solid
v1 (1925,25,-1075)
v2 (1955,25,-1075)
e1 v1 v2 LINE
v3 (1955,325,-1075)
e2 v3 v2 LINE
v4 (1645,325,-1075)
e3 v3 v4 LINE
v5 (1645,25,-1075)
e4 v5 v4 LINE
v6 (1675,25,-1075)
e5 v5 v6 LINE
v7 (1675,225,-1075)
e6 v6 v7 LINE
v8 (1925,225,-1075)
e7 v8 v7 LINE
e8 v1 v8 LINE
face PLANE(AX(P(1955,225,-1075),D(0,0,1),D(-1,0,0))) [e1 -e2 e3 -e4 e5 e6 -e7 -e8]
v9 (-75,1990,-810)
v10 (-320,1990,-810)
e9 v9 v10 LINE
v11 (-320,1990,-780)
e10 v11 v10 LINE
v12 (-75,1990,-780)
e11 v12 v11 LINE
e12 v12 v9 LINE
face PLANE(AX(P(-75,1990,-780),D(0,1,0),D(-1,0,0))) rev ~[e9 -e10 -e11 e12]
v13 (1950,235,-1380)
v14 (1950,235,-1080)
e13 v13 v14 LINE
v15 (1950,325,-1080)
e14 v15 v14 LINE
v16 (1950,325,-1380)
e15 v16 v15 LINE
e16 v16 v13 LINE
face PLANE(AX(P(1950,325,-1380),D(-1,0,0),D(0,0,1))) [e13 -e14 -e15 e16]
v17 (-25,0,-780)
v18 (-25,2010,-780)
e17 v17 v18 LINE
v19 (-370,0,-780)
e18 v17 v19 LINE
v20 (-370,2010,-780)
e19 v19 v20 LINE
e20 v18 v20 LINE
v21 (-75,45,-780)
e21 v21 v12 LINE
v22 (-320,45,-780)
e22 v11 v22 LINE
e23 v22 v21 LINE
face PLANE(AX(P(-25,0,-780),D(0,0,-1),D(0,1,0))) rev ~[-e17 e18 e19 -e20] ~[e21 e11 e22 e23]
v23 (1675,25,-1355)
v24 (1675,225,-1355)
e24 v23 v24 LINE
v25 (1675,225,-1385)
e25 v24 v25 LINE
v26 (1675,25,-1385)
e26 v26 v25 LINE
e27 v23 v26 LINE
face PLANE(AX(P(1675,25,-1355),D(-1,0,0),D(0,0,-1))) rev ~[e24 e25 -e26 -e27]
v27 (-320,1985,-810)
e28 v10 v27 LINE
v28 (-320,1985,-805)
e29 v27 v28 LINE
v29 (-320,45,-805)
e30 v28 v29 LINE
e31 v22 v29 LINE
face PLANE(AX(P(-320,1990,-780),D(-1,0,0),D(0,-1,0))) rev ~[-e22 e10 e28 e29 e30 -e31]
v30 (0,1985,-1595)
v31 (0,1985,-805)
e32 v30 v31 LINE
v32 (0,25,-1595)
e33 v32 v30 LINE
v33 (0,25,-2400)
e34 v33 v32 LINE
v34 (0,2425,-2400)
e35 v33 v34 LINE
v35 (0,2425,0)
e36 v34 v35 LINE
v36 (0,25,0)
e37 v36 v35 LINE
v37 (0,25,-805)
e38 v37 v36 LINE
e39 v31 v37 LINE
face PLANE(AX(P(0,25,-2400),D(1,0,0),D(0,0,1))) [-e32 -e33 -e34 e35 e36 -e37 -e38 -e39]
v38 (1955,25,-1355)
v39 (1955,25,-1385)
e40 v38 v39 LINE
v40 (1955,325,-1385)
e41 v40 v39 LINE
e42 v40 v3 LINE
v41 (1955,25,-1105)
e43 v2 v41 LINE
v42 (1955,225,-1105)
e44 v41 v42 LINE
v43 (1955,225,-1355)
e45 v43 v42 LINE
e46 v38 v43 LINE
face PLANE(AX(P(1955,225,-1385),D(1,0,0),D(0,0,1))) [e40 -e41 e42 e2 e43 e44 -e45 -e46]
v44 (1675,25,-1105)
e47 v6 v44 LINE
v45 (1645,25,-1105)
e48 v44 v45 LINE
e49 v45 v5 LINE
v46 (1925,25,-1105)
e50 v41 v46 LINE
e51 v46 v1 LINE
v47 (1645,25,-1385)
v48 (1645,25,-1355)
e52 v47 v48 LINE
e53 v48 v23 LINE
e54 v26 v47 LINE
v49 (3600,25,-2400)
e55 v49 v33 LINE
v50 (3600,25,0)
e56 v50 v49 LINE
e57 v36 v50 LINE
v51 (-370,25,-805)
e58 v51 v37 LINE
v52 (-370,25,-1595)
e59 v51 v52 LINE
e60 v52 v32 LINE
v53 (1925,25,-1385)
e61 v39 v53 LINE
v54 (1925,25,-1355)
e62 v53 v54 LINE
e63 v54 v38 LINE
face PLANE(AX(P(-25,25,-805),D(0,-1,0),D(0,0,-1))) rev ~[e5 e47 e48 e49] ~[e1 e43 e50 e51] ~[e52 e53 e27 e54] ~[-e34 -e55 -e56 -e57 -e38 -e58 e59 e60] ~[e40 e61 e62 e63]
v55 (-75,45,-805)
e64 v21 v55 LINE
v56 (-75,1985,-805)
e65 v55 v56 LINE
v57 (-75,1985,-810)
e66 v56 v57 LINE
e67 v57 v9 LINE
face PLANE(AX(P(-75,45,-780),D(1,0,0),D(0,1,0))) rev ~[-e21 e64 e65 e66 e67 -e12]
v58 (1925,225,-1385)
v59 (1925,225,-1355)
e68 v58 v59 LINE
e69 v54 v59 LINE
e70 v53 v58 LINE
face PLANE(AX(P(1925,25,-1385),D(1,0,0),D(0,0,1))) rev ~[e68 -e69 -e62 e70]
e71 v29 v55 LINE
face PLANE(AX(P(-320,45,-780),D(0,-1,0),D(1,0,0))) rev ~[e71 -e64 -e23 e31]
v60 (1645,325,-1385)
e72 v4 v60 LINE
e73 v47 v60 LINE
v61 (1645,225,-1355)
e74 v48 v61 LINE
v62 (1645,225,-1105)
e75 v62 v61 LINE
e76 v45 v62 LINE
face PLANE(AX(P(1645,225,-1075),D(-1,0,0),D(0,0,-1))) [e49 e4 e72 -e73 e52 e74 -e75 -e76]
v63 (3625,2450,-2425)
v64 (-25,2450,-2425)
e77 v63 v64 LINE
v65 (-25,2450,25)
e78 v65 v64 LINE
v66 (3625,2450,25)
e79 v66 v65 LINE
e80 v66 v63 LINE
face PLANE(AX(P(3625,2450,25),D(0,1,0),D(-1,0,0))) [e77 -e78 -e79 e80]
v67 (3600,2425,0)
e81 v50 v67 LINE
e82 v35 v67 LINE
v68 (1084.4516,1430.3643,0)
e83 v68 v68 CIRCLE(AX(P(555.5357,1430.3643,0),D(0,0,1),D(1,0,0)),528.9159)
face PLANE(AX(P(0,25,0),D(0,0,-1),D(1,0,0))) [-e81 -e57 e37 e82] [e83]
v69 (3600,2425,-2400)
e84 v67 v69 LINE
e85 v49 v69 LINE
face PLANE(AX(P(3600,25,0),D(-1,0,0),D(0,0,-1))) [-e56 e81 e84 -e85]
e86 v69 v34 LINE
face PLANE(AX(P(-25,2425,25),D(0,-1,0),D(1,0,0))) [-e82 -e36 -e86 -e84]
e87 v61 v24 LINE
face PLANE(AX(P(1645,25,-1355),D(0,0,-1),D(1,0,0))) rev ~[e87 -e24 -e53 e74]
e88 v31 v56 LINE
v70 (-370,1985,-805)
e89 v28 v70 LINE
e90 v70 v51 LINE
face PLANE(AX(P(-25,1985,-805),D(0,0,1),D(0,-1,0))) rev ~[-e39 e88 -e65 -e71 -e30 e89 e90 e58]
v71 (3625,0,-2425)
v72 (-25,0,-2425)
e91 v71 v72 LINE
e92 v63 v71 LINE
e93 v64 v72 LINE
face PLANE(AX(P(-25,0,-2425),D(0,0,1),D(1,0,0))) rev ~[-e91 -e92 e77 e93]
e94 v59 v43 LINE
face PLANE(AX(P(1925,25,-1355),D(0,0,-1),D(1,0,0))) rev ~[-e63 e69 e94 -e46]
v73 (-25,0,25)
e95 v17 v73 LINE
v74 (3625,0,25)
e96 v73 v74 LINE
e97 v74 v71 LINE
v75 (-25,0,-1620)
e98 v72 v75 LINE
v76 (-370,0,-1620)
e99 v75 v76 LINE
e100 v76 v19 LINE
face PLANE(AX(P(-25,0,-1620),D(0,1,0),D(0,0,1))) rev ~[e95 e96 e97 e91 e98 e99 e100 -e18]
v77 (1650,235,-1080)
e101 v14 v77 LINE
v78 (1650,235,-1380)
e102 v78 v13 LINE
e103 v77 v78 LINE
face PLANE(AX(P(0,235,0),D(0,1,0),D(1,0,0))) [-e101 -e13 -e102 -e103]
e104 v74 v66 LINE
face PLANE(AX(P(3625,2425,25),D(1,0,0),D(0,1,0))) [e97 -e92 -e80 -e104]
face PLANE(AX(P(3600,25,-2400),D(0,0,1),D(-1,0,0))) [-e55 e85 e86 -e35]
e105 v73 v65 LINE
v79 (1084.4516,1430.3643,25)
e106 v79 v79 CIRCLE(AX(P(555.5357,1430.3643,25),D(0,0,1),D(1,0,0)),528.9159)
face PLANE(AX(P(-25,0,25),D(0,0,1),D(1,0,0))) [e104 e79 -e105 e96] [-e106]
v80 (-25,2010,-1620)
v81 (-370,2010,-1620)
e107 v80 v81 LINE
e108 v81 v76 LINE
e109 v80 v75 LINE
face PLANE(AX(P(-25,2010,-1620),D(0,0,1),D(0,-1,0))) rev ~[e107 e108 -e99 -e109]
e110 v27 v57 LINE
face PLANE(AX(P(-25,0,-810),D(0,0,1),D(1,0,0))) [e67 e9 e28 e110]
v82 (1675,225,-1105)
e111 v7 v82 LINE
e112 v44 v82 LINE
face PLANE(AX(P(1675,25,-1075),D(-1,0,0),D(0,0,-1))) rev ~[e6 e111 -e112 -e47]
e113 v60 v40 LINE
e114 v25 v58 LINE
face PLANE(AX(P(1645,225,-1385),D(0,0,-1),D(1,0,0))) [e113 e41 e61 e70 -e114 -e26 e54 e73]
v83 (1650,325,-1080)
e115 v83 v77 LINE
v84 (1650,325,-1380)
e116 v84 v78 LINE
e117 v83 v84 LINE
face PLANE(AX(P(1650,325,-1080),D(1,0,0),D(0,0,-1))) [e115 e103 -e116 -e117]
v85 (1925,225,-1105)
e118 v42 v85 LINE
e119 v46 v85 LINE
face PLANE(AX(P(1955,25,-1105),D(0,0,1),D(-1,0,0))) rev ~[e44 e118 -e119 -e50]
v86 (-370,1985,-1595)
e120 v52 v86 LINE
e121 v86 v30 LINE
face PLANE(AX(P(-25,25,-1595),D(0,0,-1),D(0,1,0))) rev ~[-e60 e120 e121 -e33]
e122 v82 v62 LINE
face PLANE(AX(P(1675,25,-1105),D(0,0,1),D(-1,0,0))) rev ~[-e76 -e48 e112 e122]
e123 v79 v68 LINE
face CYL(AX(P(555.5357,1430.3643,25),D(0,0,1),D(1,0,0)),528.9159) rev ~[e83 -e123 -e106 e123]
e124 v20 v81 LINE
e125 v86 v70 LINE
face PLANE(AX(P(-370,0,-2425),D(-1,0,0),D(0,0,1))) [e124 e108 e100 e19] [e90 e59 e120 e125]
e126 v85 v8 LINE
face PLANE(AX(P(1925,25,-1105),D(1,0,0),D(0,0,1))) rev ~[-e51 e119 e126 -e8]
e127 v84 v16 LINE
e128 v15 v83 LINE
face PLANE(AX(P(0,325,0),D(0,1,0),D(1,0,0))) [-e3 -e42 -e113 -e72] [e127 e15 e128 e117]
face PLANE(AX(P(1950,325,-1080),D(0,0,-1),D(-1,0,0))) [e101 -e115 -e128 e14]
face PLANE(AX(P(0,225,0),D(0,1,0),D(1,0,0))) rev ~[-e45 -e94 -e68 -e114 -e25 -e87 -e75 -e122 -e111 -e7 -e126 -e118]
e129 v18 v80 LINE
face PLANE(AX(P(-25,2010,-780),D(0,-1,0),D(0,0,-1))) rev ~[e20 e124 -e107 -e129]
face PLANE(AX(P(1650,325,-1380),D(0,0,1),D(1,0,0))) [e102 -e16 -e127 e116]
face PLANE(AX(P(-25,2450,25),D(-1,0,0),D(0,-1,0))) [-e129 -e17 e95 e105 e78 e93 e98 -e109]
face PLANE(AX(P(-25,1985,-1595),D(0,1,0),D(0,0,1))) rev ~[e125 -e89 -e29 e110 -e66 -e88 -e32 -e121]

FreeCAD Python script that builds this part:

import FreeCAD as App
import Part
import Sketcher
from FreeCAD import Vector

doc = App.newDocument("Part")
body = doc.addObject("PartDesign::Body", "Body")

sketch1 = body.newObject("Sketcher::SketchObject", "Sketch")
sketch1.AttachmentSupport = (doc.getObject("XZ_Plane"), [""])
sketch1.MapMode = "FlatFace"
sketch1.addGeometry([
    Part.LineSegment(Vector(-25, -2425, 0), Vector(-25, 25, 0)),
    Part.LineSegment(Vector(-25, 25, 0), Vector(3625, 25, 0)),
    Part.LineSegment(Vector(3625, 25, 0), Vector(3625, -2425, 0)),
    Part.LineSegment(Vector(3625, -2425, 0), Vector(-25, -2425, 0)),
], False)
sketch1.addConstraint([
    Sketcher.Constraint("Coincident", 0, 2, 1, 1),
    Sketcher.Constraint("Coincident", 1, 2, 2, 1),
    Sketcher.Constraint("Coincident", 2, 2, 3, 1),
    Sketcher.Constraint("Coincident", 3, 2, 0, 1),
    Sketcher.Constraint("Vertical", 0),
    Sketcher.Constraint("Horizontal", 1),
    Sketcher.Constraint("Vertical", 2),
    Sketcher.Constraint("Horizontal", 3),
    Sketcher.Constraint("DistanceX", 1, 1, 1, 2, 3650.0),
    Sketcher.Constraint("DistanceY", 0, 1, 0, 2, 2450.0),
    Sketcher.Constraint("DistanceX", 0, 2, -1, 1, 25.0),
    Sketcher.Constraint("DistanceY", -1, 1, 0, 2, 25.0),
])
pad1 = body.newObject("PartDesign::Pad", "Pad")
pad1.Profile = sketch1
pad1.Length = 25
pad1.Reversed = True

sketch2 = body.newObject("Sketcher::SketchObject", "Sketch001")
sketch2.AttachmentSupport = (doc.getObject("XZ_Plane"), [""])
sketch2.MapMode = "FlatFace"
sketch2.AttachmentOffset = App.Placement(Vector(0, 0, -25), App.Rotation())
sketch2.addGeometry([
    Part.LineSegment(Vector(1645, -1385, 0), Vector(1645, -1355, 0)),
    Part.LineSegment(Vector(1645, -1355, 0), Vector(1675, -1355, 0)),
    Part.LineSegment(Vector(1675, -1355, 0), Vector(1675, -1385, 0)),
    Part.LineSegment(Vector(1675, -1385, 0), Vector(1645, -1385, 0)),
    Part.LineSegment(Vector(1925, -1385, 0), Vector(1925, -1355, 0)),
    Part.LineSegment(Vector(1925, -1355, 0), Vector(1955, -1355, 0)),
    Part.LineSegment(Vector(1955, -1355, 0), Vector(1955, -1385, 0)),
    Part.LineSegment(Vector(1955, -1385, 0), Vector(1925, -1385, 0)),
    Part.LineSegment(Vector(1925, -1105, 0), Vector(1925, -1075, 0)),
    Part.LineSegment(Vector(1925, -1075, 0), Vector(1955, -1075, 0)),
    Part.LineSegment(Vector(1955, -1075, 0), Vector(1955, -1105, 0)),
    Part.LineSegment(Vector(1955, -1105, 0), Vector(1925, -1105, 0)),
    Part.LineSegment(Vector(1645, -1105, 0), Vector(1645, -1075, 0)),
    Part.LineSegment(Vector(1645, -1075, 0), Vector(1675, -1075, 0)),
    Part.LineSegment(Vector(1675, -1075, 0), Vector(1675, -1105, 0)),
    Part.LineSegment(Vector(1675, -1105, 0), Vector(1645, -1105, 0)),
], False)
sketch2.addConstraint([
    Sketcher.Constraint("Coincident", 0, 2, 1, 1),
    Sketcher.Constraint("Coincident", 1, 2, 2, 1),
    Sketcher.Constraint("Coincident", 2, 2, 3, 1),
    Sketcher.Constraint("Coincident", 3, 2, 0, 1),
    Sketcher.Constraint("Coincident", 4, 2, 5, 1),
    Sketcher.Constraint("Coincident", 5, 2, 6, 1),
    Sketcher.Constraint("Coincident", 6, 2, 7, 1),
    Sketcher.Constraint("Coincident", 7, 2, 4, 1),
    Sketcher.Constraint("Coincident", 8, 2, 9, 1),
    Sketcher.Constraint("Coincident", 9, 2, 10, 1),
    Sketcher.Constraint("Coincident", 10, 2, 11, 1),
    Sketcher.Constraint("Coincident", 11, 2, 8, 1),
    Sketcher.Constraint("Coincident", 12, 2, 13, 1),
    Sketcher.Constraint("Coincident", 13, 2, 14, 1),
    Sketcher.Constraint("Coincident", 14, 2, 15, 1),
    Sketcher.Constraint("Coincident", 15, 2, 12, 1),
    Sketcher.Constraint("Vertical", 0),
    Sketcher.Constraint("Horizontal", 1),
    Sketcher.Constraint("Vertical", 2),
    Sketcher.Constraint("Horizontal", 3),
    Sketcher.Constraint("Vertical", 4),
    Sketcher.Constraint("Horizontal", 5),
    Sketcher.Constraint("Vertical", 6),
    Sketcher.Constraint("Horizontal", 7),
    Sketcher.Constraint("Vertical", 8),
    Sketcher.Constraint("Horizontal", 9),
    Sketcher.Constraint("Vertical", 10),
    Sketcher.Constraint("Horizontal", 11),
    Sketcher.Constraint("Vertical", 12),
    Sketcher.Constraint("Horizontal", 13),
    Sketcher.Constraint("Vertical", 14),
    Sketcher.Constraint("Horizontal", 15),
    Sketcher.Constraint("Horizontal", 1, 2, 4, 2),
    Sketcher.Constraint("Horizontal", 3, 2, 6, 2),
    Sketcher.Constraint("Horizontal", 9, 2, 12, 2),
    Sketcher.Constraint("Horizontal", 11, 2, 14, 2),
    Sketcher.Constraint("Vertical", 7, 2, 8, 2),
    Sketcher.Constraint("Vertical", 6, 2, 9, 2),
    Sketcher.Constraint("Vertical", 3, 2, 12, 2),
    Sketcher.Constraint("Vertical", 2, 2, 13, 2),
    Sketcher.Constraint("Equal", 3, 5),
    Sketcher.Constraint("Equal", 15, 0),
    Sketcher.Constraint("Equal", 6, 8),
    Sketcher.Constraint("DistanceX", 1, 1, 1, 2, 30.0),
    Sketcher.Constraint("DistanceX", 1, 2, 4, 2, 250.0),
    Sketcher.Constraint("DistanceY", 5, 2, 10, 2, 250.0),
    Sketcher.Constraint("DistanceX", -1, 1, 0, 2, 1645.0),
    Sketcher.Constraint("DistanceY", 0, 2, -1, 1, 1355.0),
])
pad2 = body.newObject("PartDesign::Pad", "Pad001")
pad2.Profile = sketch2
pad2.Length = 200
pad2.Reversed = True

sketch3 = body.newObject("Sketcher::SketchObject", "Sketch002")
sketch3.AttachmentSupport = (doc.getObject("XZ_Plane"), [""])
sketch3.MapMode = "FlatFace"
sketch3.AttachmentOffset = App.Placement(Vector(0, 0, -225), App.Rotation())
sketch3.addGeometry([
    Part.LineSegment(Vector(1955, -1385, 0), Vector(1645, -1385, 0)),
    Part.LineSegment(Vector(1645, -1385, 0), Vector(1645, -1075, 0)),
    Part.LineSegment(Vector(1645, -1075, 0), Vector(1955, -1075, 0)),
    Part.LineSegment(Vector(1955, -1075, 0), Vector(1955, -1385, 0)),
], False)
sketch3.addConstraint([
    Sketcher.Constraint("Coincident", 0, 2, 1, 1),
    Sketcher.Constraint("Coincident", 1, 2, 2, 1),
    Sketcher.Constraint("Coincident", 2, 2, 3, 1),
    Sketcher.Constraint("Coincident", 3, 2, 0, 1),
    Sketcher.Constraint("Horizontal", 0),
    Sketcher.Constraint("Vertical", 1),
    Sketcher.Constraint("Horizontal", 2),
    Sketcher.Constraint("Vertical", 3),
    Sketcher.Constraint("Equal", 2, 1),
    Sketcher.Constraint("DistanceX", 0, 2, 0, 1, 310.0),
    Sketcher.Constraint("DistanceX", -1, 1, 0, 2, 1645.0),
    Sketcher.Constraint("DistanceY", 0, 2, -1, 1, 1385.0),
])
pad3 = body.newObject("PartDesign::Pad", "Pad002")
pad3.Profile = sketch3
pad3.Length = 100
pad3.Reversed = True

sketch4 = body.newObject("Sketcher::SketchObject", "Sketch003")
sketch4.AttachmentSupport = (doc.getObject("XZ_Plane"), [""])
sketch4.MapMode = "FlatFace"
sketch4.AttachmentOffset = App.Placement(Vector(0, 0, -325), App.Rotation())
sketch4.addGeometry([
    Part.LineSegment(Vector(1950, -1380, 0), Vector(1650, -1380, 0)),
    Part.LineSegment(Vector(1650, -1380, 0), Vector(1650, -1080, 0)),
    Part.LineSegment(Vector(1650, -1080, 0), Vector(1950, -1080, 0)),
    Part.LineSegment(Vector(1950, -1080, 0), Vector(1950, -1380, 0)),
], False)
sketch4.addConstraint([
    Sketcher.Constraint("Coincident", 0, 2, 1, 1),
    Sketcher.Constraint("Coincident", 1, 2, 2, 1),
    Sketcher.Constraint("Coincident", 2, 2, 3, 1),
    Sketcher.Constraint("Coincident", 3, 2, 0, 1),
    Sketcher.Constraint("Horizontal", 0),
    Sketcher.Constraint("Vertical", 1),
    Sketcher.Constraint("Horizontal", 2),
    Sketcher.Constraint("Vertical", 3),
    Sketcher.Constraint("Equal", 2, 1),
    Sketcher.Constraint("DistanceX", 0, 2, 0, 1, 300.0),
    Sketcher.Constraint("DistanceX", -1, 1, 0, 2, 1650.0),
    Sketcher.Constraint("DistanceY", 0, 2, -1, 1, 1380.0),
])
pocket1 = body.newObject("PartDesign::Pocket", "Pocket")
pocket1.Profile = sketch4
pocket1.Length = 90
pocket1.Reversed = True

sketch5 = body.newObject("Sketcher::SketchObject", "Sketch004")
sketch5.AttachmentSupport = (doc.getObject("XZ_Plane"), [""])
sketch5.MapMode = "FlatFace"
sketch5.AttachmentOffset = App.Placement(Vector(0, 0, -25), App.Rotation())
sketch5.addGeometry([
    Part.LineSegment(Vector(-25, -2425, 0), Vector(-25, 25, 0)),
    Part.LineSegment(Vector(-25, 25, 0), Vector(3625, 25, 0)),
    Part.LineSegment(Vector(3625, 25, 0), Vector(3625, -2425, 0)),
    Part.LineSegment(Vector(3625, -2425, 0), Vector(-25, -2425, 0)),
    Part.LineSegment(Vector(3600, 0, 0), Vector(0, 0, 0)),
    Part.LineSegment(Vector(0, 0, 0), Vector(0, -2400, 0)),
    Part.LineSegment(Vector(0, -2400, 0), Vector(3600, -2400, 0)),
    Part.LineSegment(Vector(3600, -2400, 0), Vector(3600, 0, 0)),
], False)
sketch5.addConstraint([
    Sketcher.Constraint("Coincident", 0, 2, 1, 1),
    Sketcher.Constraint("Coincident", 1, 2, 2, 1),
    Sketcher.Constraint("Coincident", 2, 2, 3, 1),
    Sketcher.Constraint("Coincident", 3, 2, 0, 1),
    Sketcher.Constraint("Coincident", 4, 2, 5, 1),
    Sketcher.Constraint("Coincident", 5, 2, 6, 1),
    Sketcher.Constraint("Coincident", 6, 2, 7, 1),
    Sketcher.Constraint("Coincident", 7, 2, 4, 1),
    Sketcher.Constraint("Vertical", 0),
    Sketcher.Constraint("Horizontal", 1),
    Sketcher.Constraint("Vertical", 2),
    Sketcher.Constraint("Horizontal", 3),
    Sketcher.Constraint("Horizontal", 4),
    Sketcher.Constraint("Vertical", 5),
    Sketcher.Constraint("Horizontal", 6),
    Sketcher.Constraint("Vertical", 7),
    Sketcher.Constraint("Coincident", 4, 2, -1, 1),
    Sketcher.Constraint("DistanceX", 0, 2, -1, 1, 25.0),
    Sketcher.Constraint("DistanceY", -1, 1, 0, 2, 25.0),
    Sketcher.Constraint("DistanceY", 3, 2, 5, 2, 25.0),
    Sketcher.Constraint("DistanceX", 6, 2, 2, 2, 25.0),
    Sketcher.Constraint("DistanceX", 1, 1, 1, 2, 3650.0),
    Sketcher.Constraint("DistanceY", 0, 1, 0, 2, 2450.0),
])
pad4 = body.newObject("PartDesign::Pad", "Pad003")
pad4.Profile = sketch5
pad4.Length = 2400
pad4.Reversed = True

sketch6 = body.newObject("Sketcher::SketchObject", "Sketch005")
sketch6.AttachmentSupport = (doc.getObject("YZ_Plane"), [""])
sketch6.MapMode = "FlatFace"
sketch6.AttachmentOffset = App.Placement(Vector(0, 0, -25), App.Rotation())
sketch6.addGeometry([
    Part.LineSegment(Vector(1985, -1595, 0), Vector(25, -1595, 0)),
    Part.LineSegment(Vector(25, -1595, 0), Vector(25, -805, 0)),
    Part.LineSegment(Vector(25, -805, 0), Vector(1985, -805, 0)),
    Part.LineSegment(Vector(1985, -805, 0), Vector(1985, -1595, 0)),
], False)
sketch6.addConstraint([
    Sketcher.Constraint("Coincident", 0, 2, 1, 1),
    Sketcher.Constraint("Coincident", 1, 2, 2, 1),
    Sketcher.Constraint("Coincident", 2, 2, 3, 1),
    Sketcher.Constraint("Coincident", 3, 2, 0, 1),
    Sketcher.Constraint("Horizontal", 0),
    Sketcher.Constraint("Vertical", 1),
    Sketcher.Constraint("Horizontal", 2),
    Sketcher.Constraint("Vertical", 3),
    Sketcher.Constraint("DistanceX", 0, 2, 0, 1, 1960.0),
    Sketcher.Constraint("DistanceY", 1, 1, 1, 2, 790.0),
    Sketcher.Constraint("DistanceX", -1, 1, 0, 2, 25.0),
    Sketcher.Constraint("DistanceY", 0, 2, -1, 1, 1595.0),
])
pocket2 = body.newObject("PartDesign::Pocket", "Pocket001")
pocket2.Profile = sketch6
pocket2.Length = 30
pocket2.Reversed = True

sketch7 = body.newObject("Sketcher::SketchObject", "Sketch006")
sketch7.AttachmentSupport = (doc.getObject("YZ_Plane"), [""])
sketch7.MapMode = "FlatFace"
sketch7.AttachmentOffset = App.Placement(Vector(0, 0, -25), App.Rotation())
sketch7.addGeometry([
    Part.LineSegment(Vector(2010, -1620, 0), Vector(0, -1620, 0)),
    Part.LineSegment(Vector(0, -1620, 0), Vector(0, -780, 0)),
    Part.LineSegment(Vector(0, -780, 0), Vector(2010, -780, 0)),
    Part.LineSegment(Vector(2010, -780, 0), Vector(2010, -1620, 0)),
    Part.LineSegment(Vector(1985, -1595, 0), Vector(1985, -805, 0)),
    Part.LineSegment(Vector(1985, -805, 0), Vector(25, -805, 0)),
    Part.LineSegment(Vector(25, -805, 0), Vector(25, -1595, 0)),
    Part.LineSegment(Vector(25, -1595, 0), Vector(1985, -1595, 0)),
], False)
sketch7.addConstraint([
    Sketcher.Constraint("Coincident", 0, 2, 1, 1),
    Sketcher.Constraint("Coincident", 1, 2, 2, 1),
    Sketcher.Constraint("Coincident", 2, 2, 3, 1),
    Sketcher.Constraint("Coincident", 3, 2, 0, 1),
    Sketcher.Constraint("Coincident", 4, 2, 5, 1),
    Sketcher.Constraint("Coincident", 5, 2, 6, 1),
    Sketcher.Constraint("Coincident", 6, 2, 7, 1),
    Sketcher.Constraint("Coincident", 7, 2, 4, 1),
    Sketcher.Constraint("Horizontal", 0),
    Sketcher.Constraint("Vertical", 1),
    Sketcher.Constraint("Horizontal", 2),
    Sketcher.Constraint("Vertical", 3),
    Sketcher.Constraint("Vertical", 4),
    Sketcher.Constraint("Horizontal", 5),
    Sketcher.Constraint("Vertical", 6),
    Sketcher.Constraint("Horizontal", 7),
    Sketcher.Constraint("PointOnObject", 0, 2, -2),
    Sketcher.Constraint("DistanceX", -1, 1, 5, 2, 25.0),
    Sketcher.Constraint("DistanceX", 4, 2, 2, 2, 25.0),
    Sketcher.Constraint("DistanceY", 4, 2, 2, 2, 25.0),
    Sketcher.Constraint("DistanceY", 0, 2, 6, 2, 25.0),
    Sketcher.Constraint("DistanceX", 0, 2, 0, 1, 2010.0),
    Sketcher.Constraint("DistanceY", 1, 1, 1, 2, 840.0),
    Sketcher.Constraint("DistanceY", 0, 2, -1, 1, 1620.0),
])
pad5 = body.newObject("PartDesign::Pad", "Pad004")
pad5.Profile = sketch7
pad5.Length = 345
pad5.Reversed = True

sketch8 = body.newObject("Sketcher::SketchObject", "Sketch007")
sketch8.AttachmentSupport = (doc.getObject("XY_Plane"), [""])
sketch8.MapMode = "FlatFace"
sketch8.AttachmentOffset = App.Placement(Vector(0, 0, 25), App.Rotation())
sketch8.addGeometry(Part.Circle(Vector(555.5357, 1430.3643, 0), Vector(0, 0, 1), 528.9159), False)
sketch8.addConstraint([
    Sketcher.Constraint("Diameter", 0, 1057.8318),
    Sketcher.Constraint("DistanceX", -1, 1, 0, 3, 555.5357),
    Sketcher.Constraint("DistanceY", -1, 1, 0, 3, 1430.3643),
])
pocket3 = body.newObject("PartDesign::Pocket", "Pocket002")
pocket3.Profile = sketch8
pocket3.Length = 30

sketch9 = body.newObject("Sketcher::SketchObject", "Sketch008")
sketch9.AttachmentSupport = (doc.getObject("XY_Plane"), [""])
sketch9.MapMode = "FlatFace"
sketch9.AttachmentOffset = App.Placement(Vector(0, 0, -780), App.Rotation())
sketch9.addGeometry([
    Part.LineSegment(Vector(-320, 1990, 0), Vector(-320, 45, 0)),
    Part.LineSegment(Vector(-320, 45, 0), Vector(-75, 45, 0)),
    Part.LineSegment(Vector(-75, 45, 0), Vector(-75, 1990, 0)),
    Part.LineSegment(Vector(-75, 1990, 0), Vector(-320, 1990, 0)),
], False)
sketch9.addConstraint([
    Sketcher.Constraint("Coincident", 0, 2, 1, 1),
    Sketcher.Constraint("Coincident", 1, 2, 2, 1),
    Sketcher.Constraint("Coincident", 2, 2, 3, 1),
    Sketcher.Constraint("Coincident", 3, 2, 0, 1),
    Sketcher.Constraint("Vertical", 0),
    Sketcher.Constraint("Horizontal", 1),
    Sketcher.Constraint("Vertical", 2),
    Sketcher.Constraint("Horizontal", 3),
    Sketcher.Constraint("DistanceX", 1, 1, 1, 2, 245.0),
    Sketcher.Constraint("DistanceY", 0, 2, 0, 1, 1945.0),
    Sketcher.Constraint("DistanceX", 0, 2, -1, 1, 320.0),
    Sketcher.Constraint("DistanceY", -1, 1, 0, 2, 45.0),
])
pocket4 = body.newObject("PartDesign::Pocket", "Pocket003")
pocket4.Profile = sketch9
pocket4.Length = 30

sketch10 = body.newObject("Sketcher::SketchObject", "Sketch009")
sketch10.AttachmentSupport = (doc.getObject("XY_Plane"), [""])
sketch10.MapMode = "FlatFace"
sketch10.AttachmentOffset = App.Placement(Vector(0, 0, 25), App.Rotation())
sketch10.addGeometry([
    Part.LineSegment(Vector(-25, 2450, 0), Vector(-25, 2425, 0)),
    Part.LineSegment(Vector(-25, 2425, 0), Vector(3625, 2425, 0)),
    Part.LineSegment(Vector(3625, 2425, 0), Vector(3625, 2450, 0)),
    Part.LineSegment(Vector(3625, 2450, 0), Vector(-25, 2450, 0)),
], False)
sketch10.addConstraint([
    Sketcher.Constraint("Coincident", 0, 2, 1, 1),
    Sketcher.Constraint("Coincident", 1, 2, 2, 1),
    Sketcher.Constraint("Coincident", 2, 2, 3, 1),
    Sketcher.Constraint("Coincident", 3, 2, 0, 1),
    Sketcher.Constraint("Vertical", 0),
    Sketcher.Constraint("Horizontal", 1),
    Sketcher.Constraint("Vertical", 2),
    Sketcher.Constraint("Horizontal", 3),
    Sketcher.Constraint("DistanceX", 1, 1, 1, 2, 3650.0),
    Sketcher.Constraint("DistanceY", 0, 2, 0, 1, 25.0),
    Sketcher.Constraint("DistanceX", 0, 2, -1, 1, 25.0),
    Sketcher.Constraint("DistanceY", -1, 1, 0, 2, 2425.0),
])
pad6 = body.newObject("PartDesign::Pad", "Pad005")
pad6.Profile = sketch10
pad6.Length = 2450
pad6.Reversed = True

doc.recompute()
